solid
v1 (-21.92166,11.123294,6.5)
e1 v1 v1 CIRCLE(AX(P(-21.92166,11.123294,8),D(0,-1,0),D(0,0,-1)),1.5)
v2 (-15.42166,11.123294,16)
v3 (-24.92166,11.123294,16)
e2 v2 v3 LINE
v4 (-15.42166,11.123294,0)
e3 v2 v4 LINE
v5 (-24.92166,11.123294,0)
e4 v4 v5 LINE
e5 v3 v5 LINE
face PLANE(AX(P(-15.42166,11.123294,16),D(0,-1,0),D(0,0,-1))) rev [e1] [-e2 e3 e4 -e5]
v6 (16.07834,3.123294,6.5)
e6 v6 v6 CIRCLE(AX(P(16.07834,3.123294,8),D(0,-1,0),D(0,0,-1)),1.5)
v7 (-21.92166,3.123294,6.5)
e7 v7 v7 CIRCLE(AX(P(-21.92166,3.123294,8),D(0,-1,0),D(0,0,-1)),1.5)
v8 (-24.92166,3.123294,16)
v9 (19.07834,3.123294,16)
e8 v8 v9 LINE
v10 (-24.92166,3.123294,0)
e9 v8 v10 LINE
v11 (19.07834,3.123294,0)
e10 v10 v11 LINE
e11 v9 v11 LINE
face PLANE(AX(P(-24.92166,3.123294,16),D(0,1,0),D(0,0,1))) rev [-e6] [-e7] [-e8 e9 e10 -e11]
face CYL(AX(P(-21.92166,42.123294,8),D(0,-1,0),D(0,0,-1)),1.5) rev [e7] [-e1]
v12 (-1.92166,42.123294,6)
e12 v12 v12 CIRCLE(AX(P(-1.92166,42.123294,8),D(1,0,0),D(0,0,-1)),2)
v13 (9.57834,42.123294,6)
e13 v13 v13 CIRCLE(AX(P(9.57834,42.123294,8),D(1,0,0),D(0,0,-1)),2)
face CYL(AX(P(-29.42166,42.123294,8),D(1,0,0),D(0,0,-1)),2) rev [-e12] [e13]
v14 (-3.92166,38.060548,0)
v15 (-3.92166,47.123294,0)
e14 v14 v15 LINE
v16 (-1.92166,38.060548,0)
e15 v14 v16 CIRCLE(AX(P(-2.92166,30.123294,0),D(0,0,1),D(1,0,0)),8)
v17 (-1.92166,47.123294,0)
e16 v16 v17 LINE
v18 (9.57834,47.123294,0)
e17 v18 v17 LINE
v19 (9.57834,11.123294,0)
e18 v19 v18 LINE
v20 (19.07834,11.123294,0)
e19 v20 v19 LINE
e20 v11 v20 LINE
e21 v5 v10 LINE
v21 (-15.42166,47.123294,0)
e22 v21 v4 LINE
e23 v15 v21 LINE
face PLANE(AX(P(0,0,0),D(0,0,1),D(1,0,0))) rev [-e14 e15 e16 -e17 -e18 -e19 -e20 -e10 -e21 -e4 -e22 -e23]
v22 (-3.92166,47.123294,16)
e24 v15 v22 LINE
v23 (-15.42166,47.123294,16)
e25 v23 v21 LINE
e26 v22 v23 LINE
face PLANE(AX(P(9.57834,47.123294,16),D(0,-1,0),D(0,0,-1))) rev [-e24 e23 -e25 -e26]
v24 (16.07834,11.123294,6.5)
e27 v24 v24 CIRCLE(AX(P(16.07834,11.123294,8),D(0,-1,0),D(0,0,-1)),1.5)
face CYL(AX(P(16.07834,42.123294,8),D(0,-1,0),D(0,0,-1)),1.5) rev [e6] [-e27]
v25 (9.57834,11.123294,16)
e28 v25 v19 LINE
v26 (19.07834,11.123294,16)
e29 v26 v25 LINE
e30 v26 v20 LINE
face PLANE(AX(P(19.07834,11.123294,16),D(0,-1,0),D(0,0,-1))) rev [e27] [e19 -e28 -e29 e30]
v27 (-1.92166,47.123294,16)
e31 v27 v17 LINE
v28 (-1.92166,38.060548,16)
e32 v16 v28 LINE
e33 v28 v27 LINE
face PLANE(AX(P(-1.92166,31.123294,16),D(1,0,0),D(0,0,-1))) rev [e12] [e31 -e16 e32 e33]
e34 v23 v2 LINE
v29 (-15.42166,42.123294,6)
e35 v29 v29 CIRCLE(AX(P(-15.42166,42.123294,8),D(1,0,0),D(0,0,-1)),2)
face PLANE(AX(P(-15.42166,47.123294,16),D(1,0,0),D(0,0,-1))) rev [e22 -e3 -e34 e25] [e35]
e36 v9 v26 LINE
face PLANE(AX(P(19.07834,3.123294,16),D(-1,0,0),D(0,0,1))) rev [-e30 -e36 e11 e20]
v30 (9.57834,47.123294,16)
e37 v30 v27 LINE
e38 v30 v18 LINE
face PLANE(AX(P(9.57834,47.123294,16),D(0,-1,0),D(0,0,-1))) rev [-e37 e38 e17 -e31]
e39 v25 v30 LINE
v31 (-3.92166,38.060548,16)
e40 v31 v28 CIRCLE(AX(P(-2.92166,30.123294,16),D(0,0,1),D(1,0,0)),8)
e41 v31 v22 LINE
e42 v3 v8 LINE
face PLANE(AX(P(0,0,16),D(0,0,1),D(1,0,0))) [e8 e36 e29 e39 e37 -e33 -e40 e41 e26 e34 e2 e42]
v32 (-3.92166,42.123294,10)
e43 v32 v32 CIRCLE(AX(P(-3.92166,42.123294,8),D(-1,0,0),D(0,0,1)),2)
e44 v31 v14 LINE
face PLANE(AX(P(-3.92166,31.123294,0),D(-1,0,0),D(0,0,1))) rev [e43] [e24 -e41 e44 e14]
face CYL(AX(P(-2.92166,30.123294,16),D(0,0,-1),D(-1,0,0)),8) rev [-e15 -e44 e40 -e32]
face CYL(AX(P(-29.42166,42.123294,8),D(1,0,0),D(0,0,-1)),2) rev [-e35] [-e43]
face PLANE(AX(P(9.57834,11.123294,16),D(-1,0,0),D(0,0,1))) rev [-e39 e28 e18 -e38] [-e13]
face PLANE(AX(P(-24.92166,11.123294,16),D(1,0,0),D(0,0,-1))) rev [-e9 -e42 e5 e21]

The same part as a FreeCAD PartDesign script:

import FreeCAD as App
import Part
import Sketcher
Q = App.Units.Quantity

doc = App.newDocument("Part")
params = doc.addObject("Spreadsheet::Sheet", "Params")
for row, (alias, value) in enumerate([
    ("sketch1_diameter", "16 mm"),
    ("sketch1_width", "44 mm"),
    ("sketch1_width2", "25 mm"),
    ("sketch1_height", "8 mm"),
    ("sketch1_height2", "36 mm"),
    ("pad1_length", "16 mm"),
    ("sketch2_width", "2 mm"),
    ("sketch2_height", "16 mm"),
    ("pocket1_length", "16 mm"),
    ("sketch3_diameter", "4 mm"),
    ("pocket2_length", "39 mm"),
    ("sketch4_diameter", "3 mm"),
    ("pocket3_length", "39 mm"),
], start=1):
    params.set(f"A{row}", alias)
    params.set(f"B{row}", "=" + value)
    params.setAlias(f"B{row}", alias)

body = doc.addObject("PartDesign::Body", "Body")

# Sketch on XY plane
sketch1 = body.newObject("Sketcher::SketchObject", "Sketch")
sketch1.AttachmentSupport = (doc.getObject("XY_Plane"), [""])
sketch1.MapMode = "FlatFace"
sketch1.addGeometry([
    Part.LineSegment(App.Vector(-24.92166, 3.123294, 0), App.Vector(19.07834, 3.123294, 0)),  # 0
    Part.LineSegment(App.Vector(19.07834, 3.123294, 0), App.Vector(19.07834, 11.123294, 0)),  # 1
    Part.LineSegment(App.Vector(19.07834, 11.123294, 0), App.Vector(9.57834, 11.123294, 0)),  # 2
    Part.LineSegment(App.Vector(9.57834, 11.123294, 0), App.Vector(9.57834, 47.123294, 0)),  # 3
    Part.LineSegment(App.Vector(9.57834, 47.123294, 0), App.Vector(-15.42166, 47.123294, 0)),  # 4
    Part.LineSegment(App.Vector(-15.42166, 47.123294, 0), App.Vector(-15.42166, 11.123294, 0)),  # 5
    Part.LineSegment(App.Vector(-15.42166, 11.123294, 0), App.Vector(-24.92166, 11.123294, 0)),  # 6
    Part.LineSegment(App.Vector(-24.92166, 11.123294, 0), App.Vector(-24.92166, 3.123294, 0)),  # 7
    Part.Circle(App.Vector(-2.92166, 30.123294, 0), App.Vector(0, 0, 1), 8),  # 8
], False)
sketch1.addConstraint([
    Sketcher.Constraint("Coincident", 0, 2, 1, 1),
    Sketcher.Constraint("Coincident", 1, 2, 2, 1),
    Sketcher.Constraint("Coincident", 2, 2, 3, 1),
    Sketcher.Constraint("Coincident", 3, 2, 4, 1),
    Sketcher.Constraint("Coincident", 4, 2, 5, 1),
    Sketcher.Constraint("Coincident", 5, 2, 6, 1),
    Sketcher.Constraint("Coincident", 6, 2, 7, 1),
    Sketcher.Constraint("Coincident", 7, 2, 0, 1),
    Sketcher.Constraint("Horizontal", 0),
    Sketcher.Constraint("Vertical", 1),
    Sketcher.Constraint("Horizontal", 2),
    Sketcher.Constraint("Vertical", 3),
    Sketcher.Constraint("Horizontal", 4),
    Sketcher.Constraint("Vertical", 5),
    Sketcher.Constraint("Horizontal", 6),
    Sketcher.Constraint("Vertical", 7),
    Sketcher.Constraint("Horizontal", 2, 2, 5, 2),
    Sketcher.Constraint("Equal", 2, 6),
    Sketcher.Constraint("Diameter", 8, Q("16 mm")),
    Sketcher.Constraint("DistanceX", 0, 1, 0, 2, Q("44 mm")),
    Sketcher.Constraint("DistanceX", 4, 2, 4, 1, Q("25 mm")),
    Sketcher.Constraint("DistanceY", 1, 1, 1, 2, Q("8 mm")),
    Sketcher.Constraint("DistanceY", 3, 1, 3, 2, Q("36 mm")),
    Sketcher.Constraint("DistanceX", 8, 3, 0, 2, Q("22 mm")),
    Sketcher.Constraint("DistanceY", 0, 2, 8, 3, Q("27 mm")),
    Sketcher.Constraint("DistanceX", 8, 3, -1, 1, Q("2.92166 mm")),
    Sketcher.Constraint("DistanceY", -1, 1, 8, 3, Q("30.123294 mm")),
])
sketch1.setExpression("Constraints[18]", "Params.sketch1_diameter")
sketch1.setExpression("Constraints[19]", "Params.sketch1_width")
sketch1.setExpression("Constraints[20]", "Params.sketch1_width2")
sketch1.setExpression("Constraints[21]", "Params.sketch1_height")
sketch1.setExpression("Constraints[22]", "Params.sketch1_height2")
pad1 = body.newObject("PartDesign::Pad", "Pad")
pad1.Profile = sketch1
pad1.setExpression("Length", "Params.pad1_length")

# Sketch on XZ plane
sketch2 = body.newObject("Sketcher::SketchObject", "Sketch001")
sketch2.AttachmentSupport = (doc.getObject("XZ_Plane"), [""])
sketch2.MapMode = "FlatFace"
sketch2.AttachmentOffset = App.Placement(App.Vector(0, 0, -47.123294), App.Rotation())
sketch2.addGeometry([
    Part.LineSegment(App.Vector(-3.92166, 0, 0), App.Vector(-3.92166, 16, 0)),
    Part.LineSegment(App.Vector(-3.92166, 16, 0), App.Vector(-1.92166, 16, 0)),
    Part.LineSegment(App.Vector(-1.92166, 16, 0), App.Vector(-1.92166, 0, 0)),
    Part.LineSegment(App.Vector(-1.92166, 0, 0), App.Vector(-3.92166, 0, 0)),
], False)
sketch2.addConstraint([
    Sketcher.Constraint("Coincident", 0, 2, 1, 1),
    Sketcher.Constraint("Coincident", 1, 2, 2, 1),
    Sketcher.Constraint("Coincident", 2, 2, 3, 1),
    Sketcher.Constraint("Coincident", 3, 2, 0, 1),
    Sketcher.Constraint("Vertical", 0),
    Sketcher.Constraint("Horizontal", 1),
    Sketcher.Constraint("Vertical", 2),
    Sketcher.Constraint("Horizontal", 3),
    Sketcher.Constraint("PointOnObject", 2, 2, -1),
    Sketcher.Constraint("DistanceX", 1, 1, 1, 2, Q("2 mm")),
    Sketcher.Constraint("DistanceY", 0, 1, 0, 2, Q("16 mm")),
    Sketcher.Constraint("DistanceX", 0, 2, -1, 1, Q("3.92166 mm")),
])
sketch2.setExpression("Constraints[9]", "Params.sketch2_width")
sketch2.setExpression("Constraints[10]", "Params.sketch2_height")
pocket1 = body.newObject("PartDesign::Pocket", "Pocket")
pocket1.Profile = sketch2
pocket1.setExpression("Length", "Params.pocket1_length")
pocket1.Reversed = True

# Sketch on YZ plane
sketch3 = body.newObject("Sketcher::SketchObject", "Sketch002")
sketch3.AttachmentSupport = (doc.getObject("YZ_Plane"), [""])
sketch3.MapMode = "FlatFace"
sketch3.AttachmentOffset = App.Placement(App.Vector(0, 0, 9.57834), App.Rotation())
sketch3.addGeometry(Part.Circle(App.Vector(42.123294, 8, 0), App.Vector(0, 0, 1), 2), False)
sketch3.addConstraint([
    Sketcher.Constraint("Diameter", 0, Q("4 mm")),
    Sketcher.Constraint("DistanceY", -1, 1, 0, 3, Q("8 mm")),
    Sketcher.Constraint("DistanceX", -1, 1, 0, 3, Q("42.123294 mm")),
])
sketch3.setExpression("Constraints[0]", "Params.sketch3_diameter")
pocket2 = body.newObject("PartDesign::Pocket", "Pocket001")
pocket2.Profile = sketch3
pocket2.setExpression("Length", "Params.pocket2_length")

# Sketch on XZ plane
sketch4 = body.newObject("Sketcher::SketchObject", "Sketch003")
sketch4.AttachmentSupport = (doc.getObject("XZ_Plane"), [""])
sketch4.MapMode = "FlatFace"
sketch4.AttachmentOffset = App.Placement(App.Vector(0, 0, -3.123294), App.Rotation())
sketch4.addGeometry([
    Part.Circle(App.Vector(-21.92166, 8, 0), App.Vector(0, 0, 1), 1.5),
    Part.Circle(App.Vector(16.07834, 8, 0), App.Vector(0, 0, 1), 1.5),
], False)
sketch4.addConstraint([
    Sketcher.Constraint("Equal", 0, 1),
    Sketcher.Constraint("Horizontal", 0, 3, 1, 3),
    Sketcher.Constraint("Diameter", 0, Q("3 mm")),
    Sketcher.Constraint("DistanceY", -1, 1, 0, 3, Q("8 mm")),
    Sketcher.Constraint("DistanceX", 0, 3, 1, 3, Q("38 mm")),
    Sketcher.Constraint("DistanceX", 0, 3, -1, 1, Q("21.92166 mm")),
])
sketch4.setExpression("Constraints[2]", "Params.sketch4_diameter")
pocket3 = body.newObject("PartDesign::Pocket", "Pocket002")
pocket3.Profile = sketch4
pocket3.setExpression("Length", "Params.pocket3_length")

doc.recompute()
